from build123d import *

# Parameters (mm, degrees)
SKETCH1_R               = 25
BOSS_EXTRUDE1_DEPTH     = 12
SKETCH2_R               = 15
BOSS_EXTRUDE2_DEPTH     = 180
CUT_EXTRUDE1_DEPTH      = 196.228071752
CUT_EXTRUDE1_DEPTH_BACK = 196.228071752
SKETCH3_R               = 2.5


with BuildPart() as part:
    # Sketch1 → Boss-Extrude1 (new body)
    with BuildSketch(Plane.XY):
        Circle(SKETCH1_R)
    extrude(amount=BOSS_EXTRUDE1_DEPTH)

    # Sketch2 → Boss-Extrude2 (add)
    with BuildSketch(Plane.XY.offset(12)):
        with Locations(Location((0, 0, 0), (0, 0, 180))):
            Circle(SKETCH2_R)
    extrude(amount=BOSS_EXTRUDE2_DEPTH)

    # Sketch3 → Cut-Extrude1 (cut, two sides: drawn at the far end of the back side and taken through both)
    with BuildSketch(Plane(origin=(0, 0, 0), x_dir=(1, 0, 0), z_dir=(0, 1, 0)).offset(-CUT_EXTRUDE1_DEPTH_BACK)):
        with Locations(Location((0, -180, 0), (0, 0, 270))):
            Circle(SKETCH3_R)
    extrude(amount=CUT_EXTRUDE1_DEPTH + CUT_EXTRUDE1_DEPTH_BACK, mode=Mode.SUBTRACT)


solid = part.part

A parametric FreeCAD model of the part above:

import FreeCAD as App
import Part
import Sketcher
Q = App.Units.Quantity

doc = App.newDocument("Part")
body = doc.addObject("PartDesign::Body", "Body")

sketch1 = body.newObject("Sketcher::SketchObject", "Sketch")
sketch1.AttachmentSupport = (doc.getObject("XY_Plane"), [""])
sketch1.MapMode = "FlatFace"
sketch1.addGeometry(Part.Circle(App.Vector(0, 0, 0), App.Vector(0, 0, 1), 25), False)
sketch1.addConstraint([
    Sketcher.Constraint("Coincident", 0, 3, -1, 1),
    Sketcher.Constraint("Diameter", 0, Q("50 mm")),
])
pad1 = body.newObject("PartDesign::Pad", "Pad")
pad1.Profile = sketch1
pad1.Length = 12

sketch2 = body.newObject("Sketcher::SketchObject", "Sketch001")
sketch2.AttachmentSupport = (doc.getObject("XY_Plane"), [""])
sketch2.MapMode = "FlatFace"
sketch2.AttachmentOffset = App.Placement(App.Vector(0, 0, 12), App.Rotation())
sketch2.addGeometry(Part.Circle(App.Vector(0, 0, 0), App.Vector(0, 0, 1), 15), False)
sketch2.addConstraint([
    Sketcher.Constraint("Coincident", 0, 3, -1, 1),
    Sketcher.Constraint("Diameter", 0, Q("30 mm")),
])
pad2 = body.newObject("PartDesign::Pad", "Pad001")
pad2.Profile = sketch2
pad2.Length = 180

sketch3 = body.newObject("Sketcher::SketchObject", "Sketch002")
sketch3.AttachmentSupport = (doc.getObject("XZ_Plane"), [""])
sketch3.MapMode = "FlatFace"
sketch3.addGeometry(Part.Circle(App.Vector(0, 180, 0), App.Vector(0, 0, 1), 2.5), False)
sketch3.addConstraint([
    Sketcher.Constraint("PointOnObject", 0, 3, -2),
    Sketcher.Constraint("Diameter", 0, Q("5 mm")),
    Sketcher.Constraint("DistanceY", -1, 1, 0, 3, Q("180 mm")),
])
pocket1 = body.newObject("PartDesign::Pocket", "Pocket")
pocket1.Profile = sketch3
pocket1.Type = "ThroughAll"
pocket1.Midplane = True

doc.recompute()
